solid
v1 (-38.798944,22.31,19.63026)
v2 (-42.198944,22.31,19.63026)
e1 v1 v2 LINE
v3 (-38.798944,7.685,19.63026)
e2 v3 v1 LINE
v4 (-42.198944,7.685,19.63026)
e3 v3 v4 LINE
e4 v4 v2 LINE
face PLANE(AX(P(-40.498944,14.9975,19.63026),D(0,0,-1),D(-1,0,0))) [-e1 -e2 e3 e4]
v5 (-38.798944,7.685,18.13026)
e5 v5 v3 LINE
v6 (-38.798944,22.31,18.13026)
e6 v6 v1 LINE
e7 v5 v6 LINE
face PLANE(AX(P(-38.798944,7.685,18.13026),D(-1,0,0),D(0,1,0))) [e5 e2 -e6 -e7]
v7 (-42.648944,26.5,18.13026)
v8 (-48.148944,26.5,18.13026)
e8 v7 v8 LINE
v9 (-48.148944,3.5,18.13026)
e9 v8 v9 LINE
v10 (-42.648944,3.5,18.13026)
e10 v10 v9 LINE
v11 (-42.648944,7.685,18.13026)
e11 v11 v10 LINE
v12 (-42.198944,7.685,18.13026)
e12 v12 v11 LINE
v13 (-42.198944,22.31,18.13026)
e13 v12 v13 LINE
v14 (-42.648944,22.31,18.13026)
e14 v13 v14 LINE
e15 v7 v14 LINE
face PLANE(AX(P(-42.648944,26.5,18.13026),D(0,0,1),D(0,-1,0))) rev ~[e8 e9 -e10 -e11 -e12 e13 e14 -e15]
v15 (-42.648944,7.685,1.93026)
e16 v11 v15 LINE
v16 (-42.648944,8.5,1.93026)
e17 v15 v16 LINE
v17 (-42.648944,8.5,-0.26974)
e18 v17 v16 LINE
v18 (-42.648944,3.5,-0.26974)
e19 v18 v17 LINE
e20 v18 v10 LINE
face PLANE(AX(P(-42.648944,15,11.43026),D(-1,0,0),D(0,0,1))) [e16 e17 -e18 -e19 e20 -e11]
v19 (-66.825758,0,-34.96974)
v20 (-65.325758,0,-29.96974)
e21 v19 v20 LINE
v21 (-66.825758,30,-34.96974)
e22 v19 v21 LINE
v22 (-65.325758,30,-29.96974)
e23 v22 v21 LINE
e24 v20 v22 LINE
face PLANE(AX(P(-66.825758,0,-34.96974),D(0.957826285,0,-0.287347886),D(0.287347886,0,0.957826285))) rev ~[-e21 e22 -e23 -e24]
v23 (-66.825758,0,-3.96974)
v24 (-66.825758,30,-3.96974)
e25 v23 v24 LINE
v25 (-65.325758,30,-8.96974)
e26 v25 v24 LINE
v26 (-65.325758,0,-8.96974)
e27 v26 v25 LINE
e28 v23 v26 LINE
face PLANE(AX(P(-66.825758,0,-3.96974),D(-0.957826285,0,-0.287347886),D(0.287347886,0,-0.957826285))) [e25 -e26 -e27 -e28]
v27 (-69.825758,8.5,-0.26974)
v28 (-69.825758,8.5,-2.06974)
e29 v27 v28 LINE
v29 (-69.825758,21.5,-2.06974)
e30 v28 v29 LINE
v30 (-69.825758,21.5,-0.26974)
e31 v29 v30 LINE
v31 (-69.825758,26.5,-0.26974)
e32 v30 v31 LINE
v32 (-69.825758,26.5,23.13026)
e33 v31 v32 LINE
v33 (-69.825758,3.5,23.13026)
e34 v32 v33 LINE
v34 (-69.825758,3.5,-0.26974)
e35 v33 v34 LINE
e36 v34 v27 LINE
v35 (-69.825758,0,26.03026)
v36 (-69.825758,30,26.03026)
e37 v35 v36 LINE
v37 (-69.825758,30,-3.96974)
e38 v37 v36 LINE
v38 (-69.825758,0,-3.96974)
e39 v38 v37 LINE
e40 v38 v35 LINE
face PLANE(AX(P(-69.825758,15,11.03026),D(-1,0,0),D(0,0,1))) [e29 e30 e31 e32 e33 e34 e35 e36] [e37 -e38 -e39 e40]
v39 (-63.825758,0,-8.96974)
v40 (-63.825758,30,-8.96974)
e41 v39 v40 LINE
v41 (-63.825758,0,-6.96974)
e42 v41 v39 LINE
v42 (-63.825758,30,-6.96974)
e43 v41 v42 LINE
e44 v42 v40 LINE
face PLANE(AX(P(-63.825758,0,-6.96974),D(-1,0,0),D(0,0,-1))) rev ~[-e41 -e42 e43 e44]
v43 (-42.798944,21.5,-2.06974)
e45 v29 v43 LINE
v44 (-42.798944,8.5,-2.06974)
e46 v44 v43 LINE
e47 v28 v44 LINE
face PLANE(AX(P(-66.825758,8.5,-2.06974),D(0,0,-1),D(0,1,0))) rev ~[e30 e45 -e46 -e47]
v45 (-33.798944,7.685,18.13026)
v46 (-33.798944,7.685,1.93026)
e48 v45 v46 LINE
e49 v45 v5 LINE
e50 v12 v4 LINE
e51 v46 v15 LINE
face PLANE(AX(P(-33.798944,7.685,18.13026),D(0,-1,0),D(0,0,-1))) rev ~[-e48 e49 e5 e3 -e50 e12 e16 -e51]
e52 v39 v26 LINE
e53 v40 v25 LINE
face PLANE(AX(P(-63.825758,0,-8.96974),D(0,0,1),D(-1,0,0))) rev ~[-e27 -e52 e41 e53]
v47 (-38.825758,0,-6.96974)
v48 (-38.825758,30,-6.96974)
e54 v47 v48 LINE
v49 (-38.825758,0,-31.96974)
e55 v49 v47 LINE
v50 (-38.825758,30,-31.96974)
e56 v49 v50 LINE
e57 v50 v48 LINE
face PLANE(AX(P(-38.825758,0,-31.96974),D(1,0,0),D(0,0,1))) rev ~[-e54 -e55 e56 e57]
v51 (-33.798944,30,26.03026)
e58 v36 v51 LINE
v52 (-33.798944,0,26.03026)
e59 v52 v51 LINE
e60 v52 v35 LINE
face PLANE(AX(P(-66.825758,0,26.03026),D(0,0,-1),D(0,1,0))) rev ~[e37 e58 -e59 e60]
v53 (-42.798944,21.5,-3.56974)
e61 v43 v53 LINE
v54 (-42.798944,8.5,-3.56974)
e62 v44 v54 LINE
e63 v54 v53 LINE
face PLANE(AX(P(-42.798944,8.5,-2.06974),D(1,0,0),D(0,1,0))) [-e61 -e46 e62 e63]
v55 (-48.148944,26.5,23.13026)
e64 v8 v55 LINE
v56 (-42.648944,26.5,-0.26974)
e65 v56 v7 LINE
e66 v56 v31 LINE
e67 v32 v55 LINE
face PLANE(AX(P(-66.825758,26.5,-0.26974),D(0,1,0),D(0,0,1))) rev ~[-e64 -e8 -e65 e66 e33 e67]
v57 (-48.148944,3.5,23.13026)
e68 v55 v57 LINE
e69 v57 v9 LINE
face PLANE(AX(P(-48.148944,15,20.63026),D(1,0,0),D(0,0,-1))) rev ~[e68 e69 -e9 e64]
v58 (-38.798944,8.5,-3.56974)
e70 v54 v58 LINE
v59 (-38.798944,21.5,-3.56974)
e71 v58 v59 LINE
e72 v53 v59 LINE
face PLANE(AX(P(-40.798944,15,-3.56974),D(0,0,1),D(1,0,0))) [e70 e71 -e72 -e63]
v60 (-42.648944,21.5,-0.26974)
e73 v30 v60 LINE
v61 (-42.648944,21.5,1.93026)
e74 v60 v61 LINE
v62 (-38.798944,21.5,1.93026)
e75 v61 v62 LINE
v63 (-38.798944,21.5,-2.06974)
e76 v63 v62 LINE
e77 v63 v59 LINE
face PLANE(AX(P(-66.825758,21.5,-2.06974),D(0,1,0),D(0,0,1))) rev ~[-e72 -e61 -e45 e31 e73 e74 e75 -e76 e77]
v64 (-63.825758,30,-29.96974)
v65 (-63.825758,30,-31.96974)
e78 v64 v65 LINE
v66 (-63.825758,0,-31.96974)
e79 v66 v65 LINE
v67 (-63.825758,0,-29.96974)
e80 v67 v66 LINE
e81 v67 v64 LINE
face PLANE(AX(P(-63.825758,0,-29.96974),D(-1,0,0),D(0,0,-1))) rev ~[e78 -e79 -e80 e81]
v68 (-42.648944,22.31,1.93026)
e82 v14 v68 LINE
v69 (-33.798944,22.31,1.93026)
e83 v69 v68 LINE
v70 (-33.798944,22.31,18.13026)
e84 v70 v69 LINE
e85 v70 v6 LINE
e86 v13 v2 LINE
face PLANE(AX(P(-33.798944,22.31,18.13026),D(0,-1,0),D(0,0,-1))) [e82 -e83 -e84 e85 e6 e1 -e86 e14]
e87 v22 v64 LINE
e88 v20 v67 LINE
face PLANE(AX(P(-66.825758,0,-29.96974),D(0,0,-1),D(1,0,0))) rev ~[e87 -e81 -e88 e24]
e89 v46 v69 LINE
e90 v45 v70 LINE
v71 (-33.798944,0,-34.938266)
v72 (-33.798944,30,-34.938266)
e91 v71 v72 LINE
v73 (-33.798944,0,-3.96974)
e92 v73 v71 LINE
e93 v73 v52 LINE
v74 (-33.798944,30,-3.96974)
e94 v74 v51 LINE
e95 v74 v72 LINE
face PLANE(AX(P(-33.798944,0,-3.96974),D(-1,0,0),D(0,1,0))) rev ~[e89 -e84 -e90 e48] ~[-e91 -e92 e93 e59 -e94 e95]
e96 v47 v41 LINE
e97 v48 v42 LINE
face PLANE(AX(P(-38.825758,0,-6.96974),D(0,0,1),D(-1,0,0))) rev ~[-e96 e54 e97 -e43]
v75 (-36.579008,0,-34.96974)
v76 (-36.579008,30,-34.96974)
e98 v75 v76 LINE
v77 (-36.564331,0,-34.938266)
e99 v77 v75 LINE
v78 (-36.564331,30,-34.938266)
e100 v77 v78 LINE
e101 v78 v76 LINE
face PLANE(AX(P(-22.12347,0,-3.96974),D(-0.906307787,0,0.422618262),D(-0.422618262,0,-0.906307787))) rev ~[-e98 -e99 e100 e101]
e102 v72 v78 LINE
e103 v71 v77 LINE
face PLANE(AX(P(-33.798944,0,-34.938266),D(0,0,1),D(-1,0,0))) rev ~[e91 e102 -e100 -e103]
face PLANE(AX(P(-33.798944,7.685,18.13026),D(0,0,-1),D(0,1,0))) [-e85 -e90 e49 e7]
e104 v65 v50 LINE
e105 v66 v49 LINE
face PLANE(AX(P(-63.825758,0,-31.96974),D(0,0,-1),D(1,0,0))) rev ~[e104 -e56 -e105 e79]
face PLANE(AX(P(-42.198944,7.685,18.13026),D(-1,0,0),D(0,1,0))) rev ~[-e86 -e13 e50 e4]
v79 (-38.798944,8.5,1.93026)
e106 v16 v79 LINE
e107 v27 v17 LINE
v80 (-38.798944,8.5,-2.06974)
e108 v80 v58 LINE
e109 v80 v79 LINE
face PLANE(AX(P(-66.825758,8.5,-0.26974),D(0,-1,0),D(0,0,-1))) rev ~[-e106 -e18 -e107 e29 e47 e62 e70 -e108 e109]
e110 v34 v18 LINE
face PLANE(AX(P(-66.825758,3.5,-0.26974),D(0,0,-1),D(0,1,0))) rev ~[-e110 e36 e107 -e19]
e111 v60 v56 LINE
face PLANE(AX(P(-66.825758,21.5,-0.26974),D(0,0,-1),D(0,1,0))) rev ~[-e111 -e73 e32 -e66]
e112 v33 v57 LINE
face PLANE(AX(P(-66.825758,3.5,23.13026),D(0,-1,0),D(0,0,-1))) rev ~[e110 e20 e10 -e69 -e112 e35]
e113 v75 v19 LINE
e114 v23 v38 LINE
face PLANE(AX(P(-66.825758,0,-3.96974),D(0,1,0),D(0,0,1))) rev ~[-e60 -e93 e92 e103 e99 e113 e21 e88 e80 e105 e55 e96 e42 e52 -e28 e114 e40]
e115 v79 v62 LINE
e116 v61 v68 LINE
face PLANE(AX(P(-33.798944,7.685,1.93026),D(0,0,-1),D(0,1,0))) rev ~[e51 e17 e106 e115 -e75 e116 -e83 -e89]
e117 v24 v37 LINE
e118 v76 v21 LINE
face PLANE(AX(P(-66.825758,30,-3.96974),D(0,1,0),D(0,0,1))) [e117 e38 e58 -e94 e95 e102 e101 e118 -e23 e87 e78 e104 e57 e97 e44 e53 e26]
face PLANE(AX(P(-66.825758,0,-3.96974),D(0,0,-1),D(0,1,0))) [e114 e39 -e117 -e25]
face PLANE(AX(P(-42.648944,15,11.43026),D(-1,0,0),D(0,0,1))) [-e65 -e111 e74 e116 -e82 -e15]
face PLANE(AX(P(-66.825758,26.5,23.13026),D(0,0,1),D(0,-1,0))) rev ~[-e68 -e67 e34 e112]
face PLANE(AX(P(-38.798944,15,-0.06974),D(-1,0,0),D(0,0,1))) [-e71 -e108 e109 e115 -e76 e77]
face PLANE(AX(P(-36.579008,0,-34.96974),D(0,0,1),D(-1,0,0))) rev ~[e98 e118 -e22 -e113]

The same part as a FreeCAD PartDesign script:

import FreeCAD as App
import Part
import Sketcher
from FreeCAD import Vector
Q = App.Units.Quantity

doc = App.newDocument("Part")
params = doc.addObject("Spreadsheet::Sheet", "Params")
for row, (alias, value) in enumerate([
    ("sketch1_width", "3 mm"),
    ("sketch1_width2", "25 mm"),
    ("sketch1_height", "5 mm"),
    ("sketch1_height2", "2 mm"),
    ("pad1_length", "30 mm"),
    ("sketch2_height", "5 mm"),
    ("sketch2_width", "1.5 mm"),
    ("sketch4_width", "5 mm"),
    ("pad2_length", "30 mm"),
    ("sketch5_height", "30 mm"),
    ("pad3_length", "30 mm"),
    ("sketch6_height", "16.2 mm"),
    ("sketch7_width", "23 mm"),
    ("sketch7_height", "23.4 mm"),
    ("pocket4_length", "24.176814 mm"),
    ("sketch8_width", "3.4 mm"),
    ("pocket5_length", "1.5 mm"),
    ("sketch9_width", "23 mm"),
    ("sketch9_height", "5 mm"),
    ("pad4_length", "5.5 mm"),
    ("sketch10_width", "13 mm"),
    ("sketch10_height", "4 mm"),
    ("pocket6_length", "28.026814 mm"),
    ("sketch11_width", "4 mm"),
    ("sketch11_height", "13 mm"),
    ("pocket7_length", "1.5 mm"),
    ("sketch12_width", "30 mm"),
    ("sketch12_width2", "5 mm"),
    ("sketch12_width3", "23 mm"),
    ("sketch12_height", "23.4 mm"),
    ("sketch12_height2", "1.8 mm"),
    ("pad5_length", "3 mm"),
], start=1):
    params.set(f"A{row}", alias)
    params.set(f"B{row}", "=" + value)
    params.setAlias(f"B{row}", alias)

body = doc.addObject("PartDesign::Body", "Body")

# Sketch on XZ plane
sketch1 = doc.addObject("Sketcher::SketchObject", "Sketch")
body.addObject(sketch1)
sketch1.AttachmentSupport = (doc.XZ_Plane, [""])
sketch1.MapMode = "FlatFace"
sketch1.addGeometry([
    Part.LineSegment(Vector(-66.8, -35, 0), Vector(-66.8, -30, 0)),  # 0
    Part.LineSegment(Vector(-66.8, -30, 0), Vector(-63.8, -30, 0)),  # 1
    Part.LineSegment(Vector(-63.8, -30, 0), Vector(-63.8, -32, 0)),  # 2
    Part.LineSegment(Vector(-63.8, -32, 0), Vector(-38.8, -32, 0)),  # 3
    Part.LineSegment(Vector(-38.8, -32, 0), Vector(-38.8, -7, 0)),  # 4
    Part.LineSegment(Vector(-38.8, -7, 0), Vector(-63.8, -7, 0)),  # 5
    Part.LineSegment(Vector(-63.8, -7, 0), Vector(-63.8, -9, 0)),  # 6
    Part.LineSegment(Vector(-63.8, -9, 0), Vector(-66.8, -9, 0)),  # 7
    Part.LineSegment(Vector(-66.8, -9, 0), Vector(-66.8, -4, 0)),  # 8
    Part.LineSegment(Vector(-66.8, -4, 0), Vector(-22.1, -4, 0)),  # 9
    Part.LineSegment(Vector(-22.1, -4, 0), Vector(-36.6, -35, 0)),  # 10
    Part.LineSegment(Vector(-36.6, -35, 0), Vector(-66.8, -35, 0)),  # 11
], False)
sketch1.addConstraint([
    Sketcher.Constraint("Coincident", 0, 2, 1, 1),
    Sketcher.Constraint("Coincident", 1, 2, 2, 1),
    Sketcher.Constraint("Coincident", 2, 2, 3, 1),
    Sketcher.Constraint("Coincident", 3, 2, 4, 1),
    Sketcher.Constraint("Coincident", 4, 2, 5, 1),
    Sketcher.Constraint("Coincident", 5, 2, 6, 1),
    Sketcher.Constraint("Coincident", 6, 2, 7, 1),
    Sketcher.Constraint("Coincident", 7, 2, 8, 1),
    Sketcher.Constraint("Coincident", 8, 2, 9, 1),
    Sketcher.Constraint("Coincident", 9, 2, 10, 1),
    Sketcher.Constraint("Coincident", 10, 2, 11, 1),
    Sketcher.Constraint("Coincident", 11, 2, 0, 1),
    Sketcher.Constraint("Vertical", 0),
    Sketcher.Constraint("Horizontal", 1),
    Sketcher.Constraint("Vertical", 2),
    Sketcher.Constraint("Horizontal", 3),
    Sketcher.Constraint("Vertical", 4),
    Sketcher.Constraint("Horizontal", 5),
    Sketcher.Constraint("Vertical", 6),
    Sketcher.Constraint("Horizontal", 7),
    Sketcher.Constraint("Vertical", 8),
    Sketcher.Constraint("Horizontal", 9),
    Sketcher.Constraint("Horizontal", 11),
    Sketcher.Constraint("Vertical", 2, 2, 5, 2),
    Sketcher.Constraint("Vertical", 0, 2, 7, 2),
    Sketcher.Constraint("Equal", 5, 4),
    Sketcher.Constraint("Equal", 2, 6),
    Sketcher.Constraint("Equal", 0, 8),
    Sketcher.Constraint("DistanceX", 1, 1, 1, 2, Q("3 mm")),
    Sketcher.Constraint("DistanceX", 3, 1, 3, 2, Q("25 mm")),
    Sketcher.Constraint("DistanceY", 0, 1, 0, 2, Q("5 mm")),
    Sketcher.Constraint("DistanceY", 2, 2, 2, 1, Q("2 mm")),
    Sketcher.Constraint("Angle", 10, Q("-115 deg")),
    Sketcher.Constraint("DistanceX", 11, 2, 11, 1, Q("30.24675 mm")),
    Sketcher.Constraint("DistanceY", 0, 2, -1, 1, Q("29.96974 mm")),
    Sketcher.Constraint("DistanceX", 9, 2, -1, 1, Q("22.12347 mm")),
])
sketch1.setExpression("Constraints[28]", "Params.sketch1_width")
sketch1.setExpression("Constraints[29]", "Params.sketch1_width2")
sketch1.setExpression("Constraints[30]", "Params.sketch1_height")
sketch1.setExpression("Constraints[31]", "Params.sketch1_height2")
pad1 = doc.addObject("PartDesign::Pad", "Pad")
body.addObject(pad1)
pad1.Profile = sketch1
pad1.setExpression("Length", "Params.pad1_length")
pad1.Reversed = True

# Sketch on XZ plane
sketch2 = doc.addObject("Sketcher::SketchObject", "Sketch001")
body.addObject(sketch2)
sketch2.AttachmentSupport = (doc.XZ_Plane, [""])
sketch2.MapMode = "FlatFace"
sketch2.addGeometry([
    Part.LineSegment(Vector(-65.3, -9, 0), Vector(-66.8, -4, 0)),  # 0
    Part.LineSegment(Vector(-66.8, -4, 0), Vector(-66.8, -9, 0)),  # 1
    Part.LineSegment(Vector(-66.8, -9, 0), Vector(-65.3, -9, 0)),  # 2
    Part.LineSegment(Vector(-66.8, -30, 0), Vector(-66.8, -35, 0)),  # 3
    Part.LineSegment(Vector(-66.8, -35, 0), Vector(-65.3, -30, 0)),  # 4
    Part.LineSegment(Vector(-65.3, -30, 0), Vector(-66.8, -30, 0)),  # 5
], False)
sketch2.addConstraint([
    Sketcher.Constraint("Coincident", 0, 2, 1, 1),
    Sketcher.Constraint("Coincident", 1, 2, 2, 1),
    Sketcher.Constraint("Coincident", 2, 2, 0, 1),
    Sketcher.Constraint("Coincident", 3, 2, 4, 1),
    Sketcher.Constraint("Coincident", 4, 2, 5, 1),
    Sketcher.Constraint("Coincident", 5, 2, 3, 1),
    Sketcher.Constraint("Vertical", 1),
    Sketcher.Constraint("Horizontal", 2),
    Sketcher.Constraint("Vertical", 3),
    Sketcher.Constraint("Horizontal", 5),
    Sketcher.Constraint("Vertical", 1, 2, 3, 2),
    Sketcher.Constraint("Vertical", 2, 2, 4, 2),
    Sketcher.Constraint("Equal", 1, 3),
    Sketcher.Constraint("DistanceY", 1, 2, 1, 1, Q("5 mm")),
    Sketcher.Constraint("DistanceX", 2, 1, 2, 2, Q("1.5 mm")),
    Sketcher.Constraint("DistanceY", 3, 2, 1, 2, Q("26 mm")),
    Sketcher.Constraint("DistanceY", 0, 2, -1, 1, Q("3.96974 mm")),
    Sketcher.Constraint("DistanceX", 0, 2, -1, 1, Q("66.825758 mm")),
])
sketch2.setExpression("Constraints[13]", "Params.sketch2_height")
sketch2.setExpression("Constraints[14]", "Params.sketch2_width")
pocket1 = doc.addObject("PartDesign::Pocket", "Pocket")
body.addObject(pocket1)
pocket1.Profile = sketch2
pocket1.Type = "ThroughAll"

# Sketch on XZ plane
sketch3 = doc.addObject("Sketcher::SketchObject", "Sketch002")
body.addObject(sketch3)
sketch3.AttachmentSupport = (doc.XZ_Plane, [""])
sketch3.MapMode = "FlatFace"
sketch3.addGeometry([
    Part.LineSegment(Vector(-19, -40, 0), Vector(-19, -1, 0)),
    Part.LineSegment(Vector(-19, -1, 0), Vector(-36, -1, 0)),
    Part.LineSegment(Vector(-36, -1, 0), Vector(-36, -40, 0)),
    Part.LineSegment(Vector(-36, -40, 0), Vector(-19, -40, 0)),
], False)
sketch3.addConstraint([
    Sketcher.Constraint("Coincident", 0, 2, 1, 1),
    Sketcher.Constraint("Coincident", 1, 2, 2, 1),
    Sketcher.Constraint("Coincident", 2, 2, 3, 1),
    Sketcher.Constraint("Coincident", 3, 2, 0, 1),
    Sketcher.Constraint("Vertical", 0),
    Sketcher.Constraint("Horizontal", 1),
    Sketcher.Constraint("Vertical", 2),
    Sketcher.Constraint("Horizontal", 3),
    Sketcher.Constraint("DistanceY", 0, 1, 0, 2, Q("38.473599 mm")),
    Sketcher.Constraint("DistanceX", 1, 2, 1, 1, Q("16.608313 mm")),
    Sketcher.Constraint("DistanceX", 0, 2, -1, 1, Q("19.399318 mm")),
    Sketcher.Constraint("DistanceY", 0, 2, -1, 1, Q("1.302944 mm")),
])
pocket2 = doc.addObject("PartDesign::Pocket", "Pocket001")
body.addObject(pocket2)
pocket2.Profile = sketch3
pocket2.Type = "ThroughAll"

# Sketch on XZ plane
sketch4 = doc.addObject("Sketcher::SketchObject", "Sketch003")
body.addObject(sketch4)
sketch4.AttachmentSupport = (doc.XZ_Plane, [""])
sketch4.MapMode = "FlatFace"
sketch4.addGeometry([
    Part.LineSegment(Vector(-34, -35, 0), Vector(-34, -4, 0)),
    Part.LineSegment(Vector(-34, -4, 0), Vector(-39, -4, 0)),
    Part.LineSegment(Vector(-39, -4, 0), Vector(-39, -35, 0)),
    Part.LineSegment(Vector(-39, -35, 0), Vector(-34, -35, 0)),
], False)
sketch4.addConstraint([
    Sketcher.Constraint("Coincident", 0, 2, 1, 1),
    Sketcher.Constraint("Coincident", 1, 2, 2, 1),
    Sketcher.Constraint("Coincident", 2, 2, 3, 1),
    Sketcher.Constraint("Coincident", 3, 2, 0, 1),
    Sketcher.Constraint("Vertical", 0),
    Sketcher.Constraint("Horizontal", 1),
    Sketcher.Constraint("Vertical", 2),
    Sketcher.Constraint("Horizontal", 3),
    Sketcher.Constraint("DistanceX", 1, 2, 1, 1, Q("5 mm")),
    Sketcher.Constraint("DistanceY", 0, 1, 0, 2, Q("30.968527 mm")),
    Sketcher.Constraint("DistanceY", 0, 2, -1, 1, Q("3.96974 mm")),
    Sketcher.Constraint("DistanceX", 0, 2, -1, 1, Q("33.798944 mm")),
])
sketch4.setExpression("Constraints[8]", "Params.sketch4_width")
pad2 = doc.addObject("PartDesign::Pad", "Pad001")
body.addObject(pad2)
pad2.Profile = sketch4
pad2.setExpression("Length", "Params.pad2_length")
pad2.Reversed = True

# Sketch on XY plane
sketch5 = doc.addObject("Sketcher::SketchObject", "Sketch004")
body.addObject(sketch5)
sketch5.AttachmentSupport = (doc.XY_Plane, [""])
sketch5.MapMode = "FlatFace"
sketch5.AttachmentOffset = App.Placement(Vector(0, 0, -3.96974), App.Rotation())
sketch5.addGeometry([
    Part.LineSegment(Vector(-67, 30, 0), Vector(-67, 0, 0)),
    Part.LineSegment(Vector(-67, 0, 0), Vector(-34, 0, 0)),
    Part.LineSegment(Vector(-34, 0, 0), Vector(-34, 30, 0)),
    Part.LineSegment(Vector(-34, 30, 0), Vector(-67, 30, 0)),
], False)
sketch5.addConstraint([
    Sketcher.Constraint("Coincident", 0, 2, 1, 1),
    Sketcher.Constraint("Coincident", 1, 2, 2, 1),
    Sketcher.Constraint("Coincident", 2, 2, 3, 1),
    Sketcher.Constraint("Coincident", 3, 2, 0, 1),
    Sketcher.Constraint("Vertical", 0),
    Sketcher.Constraint("Horizontal", 1),
    Sketcher.Constraint("Vertical", 2),
    Sketcher.Constraint("Horizontal", 3),
    Sketcher.Constraint("PointOnObject", 0, 2, -1),
    Sketcher.Constraint("DistanceY", 0, 2, 0, 1, Q("30 mm")),
    Sketcher.Constraint("DistanceX", 1, 1, 1, 2, Q("33.026814 mm")),
    Sketcher.Constraint("DistanceX", 0, 2, -1, 1, Q("66.825758 mm")),
])
sketch5.setExpression("Constraints[9]", "Params.sketch5_height")
pad3 = doc.addObject("PartDesign::Pad", "Pad002")
body.addObject(pad3)
pad3.Profile = sketch5
pad3.setExpression("Length", "Params.pad3_length")

# Sketch on YZ plane
sketch6 = doc.addObject("Sketcher::SketchObject", "Sketch005")
body.addObject(sketch6)
sketch6.AttachmentSupport = (doc.YZ_Plane, [""])
sketch6.MapMode = "FlatFace"
sketch6.AttachmentOffset = App.Placement(Vector(0, 0, -33.798944), App.Rotation())
sketch6.addGeometry([
    Part.LineSegment(Vector(22, 18, 0), Vector(8, 18, 0)),
    Part.LineSegment(Vector(8, 18, 0), Vector(8, 2, 0)),
    Part.LineSegment(Vector(8, 2, 0), Vector(22, 2, 0)),
    Part.LineSegment(Vector(22, 2, 0), Vector(22, 18, 0)),
], False)
sketch6.addConstraint([
    Sketcher.Constraint("Coincident", 0, 2, 1, 1),
    Sketcher.Constraint("Coincident", 1, 2, 2, 1),
    Sketcher.Constraint("Coincident", 2, 2, 3, 1),
    Sketcher.Constraint("Coincident", 3, 2, 0, 1),
    Sketcher.Constraint("Horizontal", 0),
    Sketcher.Constraint("Vertical", 1),
    Sketcher.Constraint("Horizontal", 2),
    Sketcher.Constraint("Vertical", 3),
    Sketcher.Constraint("DistanceY", 1, 2, 1, 1, Q("16.2 mm")),
    Sketcher.Constraint("DistanceX", 0, 2, 0, 1, Q("14.625 mm")),
    Sketcher.Constraint("DistanceX", -1, 1, 2, 2, Q("22.31 mm")),
    Sketcher.Constraint("DistanceY", -1, 1, 0, 2, Q("18.13026 mm")),
])
sketch6.setExpression("Constraints[8]", "Params.sketch6_height")
pocket3 = doc.addObject("PartDesign::Pocket", "Pocket002")
body.addObject(pocket3)
pocket3.Profile = sketch6
pocket3.Type = "ThroughAll"

# Sketch on YZ plane
sketch7 = doc.addObject("Sketcher::SketchObject", "Sketch006")
body.addObject(sketch7)
sketch7.AttachmentSupport = (doc.YZ_Plane, [""])
sketch7.MapMode = "FlatFace"
sketch7.AttachmentOffset = App.Placement(Vector(0, 0, -66.825758), App.Rotation())
sketch7.addGeometry([
    Part.LineSegment(Vector(26, 0, 0), Vector(4, 0, 0)),
    Part.LineSegment(Vector(4, 0, 0), Vector(4, 23, 0)),
    Part.LineSegment(Vector(4, 23, 0), Vector(26, 23, 0)),
    Part.LineSegment(Vector(26, 23, 0), Vector(26, 0, 0)),
], False)
sketch7.addConstraint([
    Sketcher.Constraint("Coincident", 0, 2, 1, 1),
    Sketcher.Constraint("Coincident", 1, 2, 2, 1),
    Sketcher.Constraint("Coincident", 2, 2, 3, 1),
    Sketcher.Constraint("Coincident", 3, 2, 0, 1),
    Sketcher.Constraint("Horizontal", 0),
    Sketcher.Constraint("Vertical", 1),
    Sketcher.Constraint("Horizontal", 2),
    Sketcher.Constraint("Vertical", 3),
    Sketcher.Constraint("DistanceX", 0, 2, 0, 1, Q("23 mm")),
    Sketcher.Constraint("DistanceY", 1, 1, 1, 2, Q("23.4 mm")),
    Sketcher.Constraint("DistanceX", -1, 1, 0, 2, Q("3.5 mm")),
    Sketcher.Constraint("DistanceY", 0, 2, -1, 1, Q("0.26974 mm")),
])
sketch7.setExpression("Constraints[8]", "Params.sketch7_width")
sketch7.setExpression("Constraints[9]", "Params.sketch7_height")
pocket4 = doc.addObject("PartDesign::Pocket", "Pocket003")
body.addObject(pocket4)
pocket4.Profile = sketch7
pocket4.setExpression("Length", "Params.pocket4_length")
pocket4.Reversed = True

# Sketch on XY plane
sketch8 = doc.addObject("Sketcher::SketchObject", "Sketch007")
body.addObject(sketch8)
sketch8.AttachmentSupport = (doc.XY_Plane, [""])
sketch8.MapMode = "FlatFace"
sketch8.AttachmentOffset = App.Placement(Vector(0, 0, 18.13026), App.Rotation())
sketch8.addGeometry([
    Part.LineSegment(Vector(-38.8, 22.3, 0), Vector(-38.8, 7.7, 0)),
    Part.LineSegment(Vector(-38.8, 7.7, 0), Vector(-42.2, 7.7, 0)),
    Part.LineSegment(Vector(-42.2, 7.7, 0), Vector(-42.2, 22.3, 0)),
    Part.LineSegment(Vector(-42.2, 22.3, 0), Vector(-38.8, 22.3, 0)),
], False)
sketch8.addConstraint([
    Sketcher.Constraint("Coincident", 0, 2, 1, 1),
    Sketcher.Constraint("Coincident", 1, 2, 2, 1),
    Sketcher.Constraint("Coincident", 2, 2, 3, 1),
    Sketcher.Constraint("Coincident", 3, 2, 0, 1),
    Sketcher.Constraint("Vertical", 0),
    Sketcher.Constraint("Horizontal", 1),
    Sketcher.Constraint("Vertical", 2),
    Sketcher.Constraint("Horizontal", 3),
    Sketcher.Constraint("DistanceX", 1, 2, 1, 1, Q("3.4 mm")),
    Sketcher.Constraint("DistanceY", 0, 2, 0, 1, Q("14.625 mm")),
    Sketcher.Constraint("DistanceY", -1, 1, 2, 2, Q("22.31 mm")),
    Sketcher.Constraint("DistanceX", 0, 2, -1, 1, Q("38.798944 mm")),
])
sketch8.setExpression("Constraints[8]", "Params.sketch8_width")
pocket5 = doc.addObject("PartDesign::Pocket", "Pocket004")
body.addObject(pocket5)
pocket5.Profile = sketch8
pocket5.setExpression("Length", "Params.pocket5_length")
pocket5.Reversed = True

# Sketch on YZ plane
sketch9 = doc.addObject("Sketcher::SketchObject", "Sketch008")
body.addObject(sketch9)
sketch9.AttachmentSupport = (doc.YZ_Plane, [""])
sketch9.MapMode = "FlatFace"
sketch9.AttachmentOffset = App.Placement(Vector(0, 0, -42.648944), App.Rotation())
sketch9.addGeometry([
    Part.LineSegment(Vector(26, 18, 0), Vector(4, 18, 0)),
    Part.LineSegment(Vector(4, 18, 0), Vector(4, 23, 0)),
    Part.LineSegment(Vector(4, 23, 0), Vector(26, 23, 0)),
    Part.LineSegment(Vector(26, 23, 0), Vector(26, 18, 0)),
], False)
sketch9.addConstraint([
    Sketcher.Constraint("Coincident", 0, 2, 1, 1),
    Sketcher.Constraint("Coincident", 1, 2, 2, 1),
    Sketcher.Constraint("Coincident", 2, 2, 3, 1),
    Sketcher.Constraint("Coincident", 3, 2, 0, 1),
    Sketcher.Constraint("Horizontal", 0),
    Sketcher.Constraint("Vertical", 1),
    Sketcher.Constraint("Horizontal", 2),
    Sketcher.Constraint("Vertical", 3),
    Sketcher.Constraint("DistanceX", 0, 2, 0, 1, Q("23 mm")),
    Sketcher.Constraint("DistanceY", 1, 1, 1, 2, Q("5 mm")),
    Sketcher.Constraint("DistanceX", -1, 1, 0, 2, Q("3.5 mm")),
    Sketcher.Constraint("DistanceY", -1, 1, 0, 2, Q("18.13026 mm")),
])
sketch9.setExpression("Constraints[8]", "Params.sketch9_width")
sketch9.setExpression("Constraints[9]", "Params.sketch9_height")
pad4 = doc.addObject("PartDesign::Pad", "Pad003")
body.addObject(pad4)
pad4.Profile = sketch9
pad4.setExpression("Length", "Params.pad4_length")
pad4.Reversed = True

# Sketch on YZ plane
sketch10 = doc.addObject("Sketcher::SketchObject", "Sketch009")
body.addObject(sketch10)
sketch10.AttachmentSupport = (doc.YZ_Plane, [""])
sketch10.MapMode = "FlatFace"
sketch10.AttachmentOffset = App.Placement(Vector(0, 0, -66.825758), App.Rotation())
sketch10.addGeometry([
    Part.LineSegment(Vector(21.5, -2.1, 0), Vector(8.5, -2.1, 0)),
    Part.LineSegment(Vector(8.5, -2.1, 0), Vector(8.5, 1.9, 0)),
    Part.LineSegment(Vector(8.5, 1.9, 0), Vector(21.5, 1.9, 0)),
    Part.LineSegment(Vector(21.5, 1.9, 0), Vector(21.5, -2.1, 0)),
], False)
sketch10.addConstraint([
    Sketcher.Constraint("Coincident", 0, 2, 1, 1),
    Sketcher.Constraint("Coincident", 1, 2, 2, 1),
    Sketcher.Constraint("Coincident", 2, 2, 3, 1),
    Sketcher.Constraint("Coincident", 3, 2, 0, 1),
    Sketcher.Constraint("Horizontal", 0),
    Sketcher.Constraint("Vertical", 1),
    Sketcher.Constraint("Horizontal", 2),
    Sketcher.Constraint("Vertical", 3),
    Sketcher.Constraint("DistanceX", 0, 2, 0, 1, Q("13 mm")),
    Sketcher.Constraint("DistanceY", 1, 1, 1, 2, Q("4 mm")),
    Sketcher.Constraint("DistanceX", -1, 1, 0, 2, Q("8.5 mm")),
    Sketcher.Constraint("DistanceY", 0, 2, -1, 1, Q("2.06974 mm")),
])
sketch10.setExpression("Constraints[8]", "Params.sketch10_width")
sketch10.setExpression("Constraints[9]", "Params.sketch10_height")
pocket6 = doc.addObject("PartDesign::Pocket", "Pocket005")
body.addObject(pocket6)
pocket6.Profile = sketch10
pocket6.setExpression("Length", "Params.pocket6_length")
pocket6.Reversed = True

# Sketch on XY plane
sketch11 = doc.addObject("Sketcher::SketchObject", "Sketch010")
body.addObject(sketch11)
sketch11.AttachmentSupport = (doc.XY_Plane, [""])
sketch11.MapMode = "FlatFace"
sketch11.AttachmentOffset = App.Placement(Vector(0, 0, -2.06974), App.Rotation())
sketch11.addGeometry([
    Part.LineSegment(Vector(-42.8, 21.5, 0), Vector(-42.8, 8.5, 0)),
    Part.LineSegment(Vector(-42.8, 8.5, 0), Vector(-38.8, 8.5, 0)),
    Part.LineSegment(Vector(-38.8, 8.5, 0), Vector(-38.8, 21.5, 0)),
    Part.LineSegment(Vector(-38.8, 21.5, 0), Vector(-42.8, 21.5, 0)),
], False)
sketch11.addConstraint([
    Sketcher.Constraint("Coincident", 0, 2, 1, 1),
    Sketcher.Constraint("Coincident", 1, 2, 2, 1),
    Sketcher.Constraint("Coincident", 2, 2, 3, 1),
    Sketcher.Constraint("Coincident", 3, 2, 0, 1),
    Sketcher.Constraint("Vertical", 0),
    Sketcher.Constraint("Horizontal", 1),
    Sketcher.Constraint("Vertical", 2),
    Sketcher.Constraint("Horizontal", 3),
    Sketcher.Constraint("DistanceX", 1, 1, 1, 2, Q("4 mm")),
    Sketcher.Constraint("DistanceY", 0, 2, 0, 1, Q("13 mm")),
    Sketcher.Constraint("DistanceY", -1, 1, 0, 2, Q("8.5 mm")),
    Sketcher.Constraint("DistanceX", 0, 2, -1, 1, Q("42.798944 mm")),
])
sketch11.setExpression("Constraints[8]", "Params.sketch11_width")
sketch11.setExpression("Constraints[9]", "Params.sketch11_height")
pocket7 = doc.addObject("PartDesign::Pocket", "Pocket006")
body.addObject(pocket7)
pocket7.Profile = sketch11
pocket7.setExpression("Length", "Params.pocket7_length")

# Sketch on YZ plane
sketch12 = doc.addObject("Sketcher::SketchObject", "Sketch011")
body.addObject(sketch12)
sketch12.AttachmentSupport = (doc.YZ_Plane, [""])
sketch12.MapMode = "FlatFace"
sketch12.AttachmentOffset = App.Placement(Vector(0, 0, -66.825758), App.Rotation())
sketch12.addGeometry([
    Part.LineSegment(Vector(30, -4, 0), Vector(0, -4, 0)),  # 0
    Part.LineSegment(Vector(0, -4, 0), Vector(0, 26, 0)),  # 1
    Part.LineSegment(Vector(0, 26, 0), Vector(30, 26, 0)),  # 2
    Part.LineSegment(Vector(30, 26, 0), Vector(30, -4, 0)),  # 3
    Part.LineSegment(Vector(21.5, -0.3, 0), Vector(26.5, -0.3, 0)),  # 4
    Part.LineSegment(Vector(26.5, -0.3, 0), Vector(26.5, 23.1, 0)),  # 5
    Part.LineSegment(Vector(26.5, 23.1, 0), Vector(3.5, 23.1, 0)),  # 6
    Part.LineSegment(Vector(3.5, 23.1, 0), Vector(3.5, -0.3, 0)),  # 7
    Part.LineSegment(Vector(3.5, -0.3, 0), Vector(8.5, -0.3, 0)),  # 8
    Part.LineSegment(Vector(8.5, -0.3, 0), Vector(8.5, -2.1, 0)),  # 9
    Part.LineSegment(Vector(8.5, -2.1, 0), Vector(21.5, -2.1, 0)),  # 10
    Part.LineSegment(Vector(21.5, -2.1, 0), Vector(21.5, -0.3, 0)),  # 11
], False)
sketch12.addConstraint([
    Sketcher.Constraint("Coincident", 0, 2, 1, 1),
    Sketcher.Constraint("Coincident", 1, 2, 2, 1),
    Sketcher.Constraint("Coincident", 2, 2, 3, 1),
    Sketcher.Constraint("Coincident", 3, 2, 0, 1),
    Sketcher.Constraint("Coincident", 4, 2, 5, 1),
    Sketcher.Constraint("Coincident", 5, 2, 6, 1),
    Sketcher.Constraint("Coincident", 6, 2, 7, 1),
    Sketcher.Constraint("Coincident", 7, 2, 8, 1),
    Sketcher.Constraint("Coincident", 8, 2, 9, 1),
    Sketcher.Constraint("Coincident", 9, 2, 10, 1),
    Sketcher.Constraint("Coincident", 10, 2, 11, 1),
    Sketcher.Constraint("Coincident", 11, 2, 4, 1),
    Sketcher.Constraint("Horizontal", 0),
    Sketcher.Constraint("Vertical", 1),
    Sketcher.Constraint("Horizontal", 2),
    Sketcher.Constraint("Vertical", 3),
    Sketcher.Constraint("Horizontal", 4),
    Sketcher.Constraint("Vertical", 5),
    Sketcher.Constraint("Horizontal", 6),
    Sketcher.Constraint("Vertical", 7),
    Sketcher.Constraint("Horizontal", 8),
    Sketcher.Constraint("Vertical", 9),
    Sketcher.Constraint("Horizontal", 10),
    Sketcher.Constraint("Vertical", 11),
    Sketcher.Constraint("PointOnObject", 0, 2, -2),
    Sketcher.Constraint("Horizontal", 4, 2, 7, 2),
    Sketcher.Constraint("Equal", 4, 8),
    Sketcher.Constraint("Equal", 2, 1),
    Sketcher.Constraint("DistanceX", 0, 2, 0, 1, Q("30 mm")),
    Sketcher.Constraint("DistanceX", 4, 1, 4, 2, Q("5 mm")),
    Sketcher.Constraint("DistanceX", 6, 2, 6, 1, Q("23 mm")),
    Sketcher.Constraint("DistanceY", 5, 1, 5, 2, Q("23.4 mm")),
    Sketcher.Constraint("DistanceY", 9, 2, 9, 1, Q("1.8 mm")),
    Sketcher.Constraint("DistanceX", -1, 1, 4, 2, Q("26.5 mm")),
    Sketcher.Constraint("DistanceY", 3, 2, 4, 2, Q("3.7 mm")),
    Sketcher.Constraint("DistanceY", 0, 2, -1, 1, Q("3.96974 mm")),
])
sketch12.setExpression("Constraints[28]", "Params.sketch12_width")
sketch12.setExpression("Constraints[29]", "Params.sketch12_width2")
sketch12.setExpression("Constraints[30]", "Params.sketch12_width3")
sketch12.setExpression("Constraints[31]", "Params.sketch12_height")
sketch12.setExpression("Constraints[32]", "Params.sketch12_height2")
pad5 = doc.addObject("PartDesign::Pad", "Pad004")
body.addObject(pad5)
pad5.Profile = sketch12
pad5.setExpression("Length", "Params.pad5_length")
pad5.Reversed = True

doc.recompute()
